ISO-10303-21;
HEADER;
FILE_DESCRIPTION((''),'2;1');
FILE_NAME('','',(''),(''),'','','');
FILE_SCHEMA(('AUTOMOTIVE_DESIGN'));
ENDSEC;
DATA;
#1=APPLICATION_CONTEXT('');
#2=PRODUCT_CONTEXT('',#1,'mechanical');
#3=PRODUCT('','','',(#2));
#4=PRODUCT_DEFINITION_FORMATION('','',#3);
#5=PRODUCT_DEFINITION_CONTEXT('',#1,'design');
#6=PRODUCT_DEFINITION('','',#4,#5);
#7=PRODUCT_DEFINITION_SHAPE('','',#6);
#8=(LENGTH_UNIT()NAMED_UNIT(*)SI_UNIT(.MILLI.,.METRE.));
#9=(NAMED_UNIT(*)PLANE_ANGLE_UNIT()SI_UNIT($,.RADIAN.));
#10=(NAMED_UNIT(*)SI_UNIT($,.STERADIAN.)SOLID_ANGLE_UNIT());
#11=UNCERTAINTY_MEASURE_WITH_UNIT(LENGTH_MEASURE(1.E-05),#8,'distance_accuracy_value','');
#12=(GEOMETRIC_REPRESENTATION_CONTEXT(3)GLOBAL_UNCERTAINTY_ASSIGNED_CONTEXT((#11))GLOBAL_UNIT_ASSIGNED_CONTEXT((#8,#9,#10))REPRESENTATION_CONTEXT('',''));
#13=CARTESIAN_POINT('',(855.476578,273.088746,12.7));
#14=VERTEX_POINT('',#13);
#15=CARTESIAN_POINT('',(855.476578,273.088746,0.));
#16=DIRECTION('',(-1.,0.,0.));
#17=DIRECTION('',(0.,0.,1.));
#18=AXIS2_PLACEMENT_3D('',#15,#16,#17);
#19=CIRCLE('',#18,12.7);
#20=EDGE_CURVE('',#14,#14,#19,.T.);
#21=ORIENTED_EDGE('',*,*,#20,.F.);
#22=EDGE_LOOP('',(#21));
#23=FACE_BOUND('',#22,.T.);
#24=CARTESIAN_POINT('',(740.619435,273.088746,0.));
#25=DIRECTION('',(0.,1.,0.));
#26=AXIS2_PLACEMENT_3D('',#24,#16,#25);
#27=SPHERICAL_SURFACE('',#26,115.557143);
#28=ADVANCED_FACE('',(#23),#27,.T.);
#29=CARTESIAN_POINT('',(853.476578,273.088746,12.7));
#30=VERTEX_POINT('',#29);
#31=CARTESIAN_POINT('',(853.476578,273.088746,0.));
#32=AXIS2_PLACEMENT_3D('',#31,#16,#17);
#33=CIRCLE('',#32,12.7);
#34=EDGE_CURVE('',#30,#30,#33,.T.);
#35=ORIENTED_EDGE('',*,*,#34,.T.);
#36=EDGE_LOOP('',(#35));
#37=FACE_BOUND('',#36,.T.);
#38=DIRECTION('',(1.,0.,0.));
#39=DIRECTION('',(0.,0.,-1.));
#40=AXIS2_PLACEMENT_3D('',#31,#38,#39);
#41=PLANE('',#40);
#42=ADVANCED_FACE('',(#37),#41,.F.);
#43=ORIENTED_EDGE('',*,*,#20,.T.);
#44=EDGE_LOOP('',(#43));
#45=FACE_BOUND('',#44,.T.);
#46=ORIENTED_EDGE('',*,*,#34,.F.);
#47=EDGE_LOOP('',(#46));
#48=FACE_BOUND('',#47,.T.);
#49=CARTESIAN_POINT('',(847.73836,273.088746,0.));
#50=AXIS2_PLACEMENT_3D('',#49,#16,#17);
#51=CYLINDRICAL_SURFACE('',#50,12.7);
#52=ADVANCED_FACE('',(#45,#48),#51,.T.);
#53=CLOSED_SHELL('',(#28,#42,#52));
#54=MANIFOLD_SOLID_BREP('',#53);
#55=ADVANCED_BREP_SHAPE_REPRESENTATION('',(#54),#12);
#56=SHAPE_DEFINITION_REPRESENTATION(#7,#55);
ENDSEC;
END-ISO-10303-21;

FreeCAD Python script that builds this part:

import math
import FreeCAD as App
import Part
import Sketcher

V = App.Vector

doc = App.newDocument("Part")
params = doc.addObject("Spreadsheet::Sheet", "Params")
for row, (alias, value) in enumerate([
    ("sketch1_width", "2 mm"),
    ("sketch1_width2", "2.7 mm"),
    ("sketch1_height", "12.7 mm"),
    ("revolution_angle", "360 deg"),
], start=1):
    params.set(f"A{row}", alias)
    params.set(f"B{row}", "=" + value)
    params.setAlias(f"B{row}", alias)

body = doc.addObject("PartDesign::Body", "Body")

sketch1 = body.newObject("Sketcher::SketchObject", "Sketch")
sketch1.AttachmentSupport = (doc.getObject("XY_Plane"), [""])
sketch1.MapMode = "FlatFace"
sketch1.addGeometry([
    Part.LineSegment(V(853.5, 285.8, 0), V(853.5, 273.1, 0)),
    Part.LineSegment(V(853.5, 273.1, 0), V(856.2, 273.1, 0)),
    Part.ArcOfCircle(Part.Circle(V(740.6, 273.1, 0), V(0, 0, 1), 115.6), math.radians(0), math.radians(6.31)),
    Part.LineSegment(V(855.5, 285.8, 0), V(853.5, 285.8, 0)),
], False)
sketch1.addGeometry(Part.LineSegment(V(740.6, 273.1, 0), V(856.2, 273.1, 0)), True)
sketch1.addConstraint([
    Sketcher.Constraint("Coincident", 0, 2, 1, 1),
    Sketcher.Constraint("Coincident", 1, 2, 2, 1),
    Sketcher.Constraint("Coincident", 2, 2, 3, 1),
    Sketcher.Constraint("Coincident", 3, 2, 0, 1),
    Sketcher.Constraint("Vertical", 0),
    Sketcher.Constraint("Horizontal", 1),
    Sketcher.Constraint("Horizontal", 3),
    Sketcher.Constraint("Horizontal", 4),
    Sketcher.Constraint("Coincident", 4, 1, 2, 3),
    Sketcher.Constraint("Coincident", 4, 2, 1, 2),
    Sketcher.Constraint("DistanceX", 3, 2, 3, 1, 2.0),
    Sketcher.Constraint("DistanceX", 1, 1, 1, 2, 2.7),
    Sketcher.Constraint("DistanceY", 0, 2, 0, 1, 12.7),
    Sketcher.Constraint("DistanceX", -1, 1, 2, 3, 740.619435),
    Sketcher.Constraint("DistanceY", -1, 1, 2, 3, 273.088746),
])
sketch1.setExpression("Constraints[10]", "Params.sketch1_width")
sketch1.setExpression("Constraints[11]", "Params.sketch1_width2")
sketch1.setExpression("Constraints[12]", "Params.sketch1_height")
revolution = body.newObject("PartDesign::Revolution", "Revolution")
revolution.Profile = sketch1
revolution.ReferenceAxis = (sketch1, ["Axis0"])
revolution.setExpression("Angle", "Params.revolution_angle")

doc.recompute()
